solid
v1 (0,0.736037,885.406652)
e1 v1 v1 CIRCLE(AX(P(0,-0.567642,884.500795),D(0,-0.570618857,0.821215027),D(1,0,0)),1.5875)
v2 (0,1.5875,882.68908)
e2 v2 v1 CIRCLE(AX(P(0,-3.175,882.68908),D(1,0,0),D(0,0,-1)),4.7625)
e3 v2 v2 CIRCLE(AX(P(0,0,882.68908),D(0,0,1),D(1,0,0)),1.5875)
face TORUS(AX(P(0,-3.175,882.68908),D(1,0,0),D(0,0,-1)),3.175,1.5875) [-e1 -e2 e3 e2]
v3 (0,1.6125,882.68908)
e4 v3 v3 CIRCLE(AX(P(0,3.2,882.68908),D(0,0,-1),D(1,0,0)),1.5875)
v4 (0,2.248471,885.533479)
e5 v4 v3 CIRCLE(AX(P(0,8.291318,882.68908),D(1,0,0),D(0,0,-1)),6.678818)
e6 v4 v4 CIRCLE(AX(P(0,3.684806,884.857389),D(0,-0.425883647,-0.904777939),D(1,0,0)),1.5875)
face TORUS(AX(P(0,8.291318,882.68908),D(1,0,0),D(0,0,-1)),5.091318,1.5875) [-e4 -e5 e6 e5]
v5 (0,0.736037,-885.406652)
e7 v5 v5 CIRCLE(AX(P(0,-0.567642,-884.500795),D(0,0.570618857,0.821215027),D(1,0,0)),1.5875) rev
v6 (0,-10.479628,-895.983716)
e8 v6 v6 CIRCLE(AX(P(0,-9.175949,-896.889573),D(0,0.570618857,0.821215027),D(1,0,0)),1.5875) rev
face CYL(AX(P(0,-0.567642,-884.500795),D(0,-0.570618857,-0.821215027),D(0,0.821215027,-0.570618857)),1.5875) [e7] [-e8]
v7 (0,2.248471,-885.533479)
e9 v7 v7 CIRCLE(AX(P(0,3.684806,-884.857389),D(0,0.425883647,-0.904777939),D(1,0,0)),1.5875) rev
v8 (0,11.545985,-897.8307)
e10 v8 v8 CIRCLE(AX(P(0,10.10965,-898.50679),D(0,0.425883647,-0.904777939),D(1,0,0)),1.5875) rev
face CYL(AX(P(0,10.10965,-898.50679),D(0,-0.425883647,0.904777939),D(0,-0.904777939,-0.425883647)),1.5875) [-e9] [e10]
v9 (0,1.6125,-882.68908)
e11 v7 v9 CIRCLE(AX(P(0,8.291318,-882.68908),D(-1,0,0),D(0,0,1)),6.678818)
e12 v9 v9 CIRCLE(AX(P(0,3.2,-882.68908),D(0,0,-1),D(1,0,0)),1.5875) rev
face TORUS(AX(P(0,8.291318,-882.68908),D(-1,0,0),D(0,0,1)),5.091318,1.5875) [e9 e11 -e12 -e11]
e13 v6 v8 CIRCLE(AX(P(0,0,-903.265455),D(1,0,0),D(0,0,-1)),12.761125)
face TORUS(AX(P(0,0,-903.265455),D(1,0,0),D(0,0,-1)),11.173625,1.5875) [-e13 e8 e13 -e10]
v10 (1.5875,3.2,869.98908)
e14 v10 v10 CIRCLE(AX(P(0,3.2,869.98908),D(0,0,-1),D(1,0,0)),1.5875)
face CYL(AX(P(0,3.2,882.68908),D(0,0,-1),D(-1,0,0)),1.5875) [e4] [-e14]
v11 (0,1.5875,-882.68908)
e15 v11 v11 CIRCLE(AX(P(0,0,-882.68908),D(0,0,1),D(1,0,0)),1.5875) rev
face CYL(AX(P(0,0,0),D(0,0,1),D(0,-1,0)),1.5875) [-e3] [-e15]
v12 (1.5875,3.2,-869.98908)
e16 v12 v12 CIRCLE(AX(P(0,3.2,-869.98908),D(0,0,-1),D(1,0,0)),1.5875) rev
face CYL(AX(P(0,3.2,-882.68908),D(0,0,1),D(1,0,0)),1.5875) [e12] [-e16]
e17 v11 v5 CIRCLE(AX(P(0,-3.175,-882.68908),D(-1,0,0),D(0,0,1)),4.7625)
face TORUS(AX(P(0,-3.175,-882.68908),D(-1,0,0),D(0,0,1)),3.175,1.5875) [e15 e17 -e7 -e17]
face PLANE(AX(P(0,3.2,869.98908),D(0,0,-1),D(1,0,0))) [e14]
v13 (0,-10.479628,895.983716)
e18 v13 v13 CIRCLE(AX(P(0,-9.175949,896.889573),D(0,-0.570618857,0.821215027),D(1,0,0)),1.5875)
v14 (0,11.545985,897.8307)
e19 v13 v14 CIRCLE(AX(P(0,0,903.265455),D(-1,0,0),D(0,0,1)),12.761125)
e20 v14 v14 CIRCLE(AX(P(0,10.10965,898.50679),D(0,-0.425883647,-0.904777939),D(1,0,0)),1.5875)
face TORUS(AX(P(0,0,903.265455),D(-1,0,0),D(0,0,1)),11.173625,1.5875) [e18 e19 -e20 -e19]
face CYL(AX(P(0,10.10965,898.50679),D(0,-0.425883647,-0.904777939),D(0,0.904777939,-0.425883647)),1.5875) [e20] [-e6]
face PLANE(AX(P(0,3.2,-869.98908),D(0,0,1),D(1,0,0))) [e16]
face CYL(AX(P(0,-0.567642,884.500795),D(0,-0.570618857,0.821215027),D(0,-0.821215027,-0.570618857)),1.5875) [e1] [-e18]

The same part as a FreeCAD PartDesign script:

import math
import FreeCAD as App
import Part
import Sketcher
Q = App.Units.Quantity

doc = App.newDocument("Part")
body = doc.addObject("PartDesign::Body", "Body")

# Sketch on XY plane
sketch1 = body.newObject("Sketcher::SketchObject", "Sketch")
sketch1.AttachmentSupport = (doc.getObject("XY_Plane"), [""])
sketch1.MapMode = "FlatFace"
sketch1.addGeometry(Part.Circle(App.Vector(0, 0, 0), App.Vector(0, 0, 1), 1.6), False)
sketch1.addConstraint(Sketcher.Constraint("Coincident", 0, 3, -1, 1))
sketch1.addConstraint(Sketcher.Constraint("Diameter", 0, Q("0.125 in")))

# Sketch on YZ plane
sketch2 = body.newObject("Sketcher::SketchObject", "Sketch001")
sketch2.AttachmentSupport = (doc.getObject("YZ_Plane"), [""])
sketch2.MapMode = "FlatFace"
sketch2.addGeometry(Part.LineSegment(App.Vector(0, 0, 0), App.Vector(0, 882.7, 0)), False)
sketch2.addGeometry(Part.ArcOfCircle(Part.Circle(App.Vector(-3.2, 882.7, 0), App.Vector(0, 0, 1), 3.2), math.radians(0), math.radians(35)), False)
sketch2.addGeometry(Part.LineSegment(App.Vector(-0.6, 884.5, 0), App.Vector(-9.2, 896.9, 0)), False)
sketch2.addGeometry(Part.ArcOfCircle(Part.Circle(App.Vector(0, 903.3, 0), App.Vector(0, 0, 1), 11.2), math.radians(-25), math.radians(215)), False)
sketch2.addGeometry(Part.LineSegment(App.Vector(10.1, 898.5, 0), App.Vector(3.7, 884.9, 0)), False)
sketch2.addGeometry(Part.ArcOfCircle(Part.Circle(App.Vector(8.3, 882.7, 0), App.Vector(0, 0, 1), 5.1), math.radians(155), math.radians(180)), False)
sketch2.addGeometry(Part.LineSegment(App.Vector(3.2, 882.7, 0), App.Vector(3.2, 870, 0)), False)
sketch2.addConstraint(Sketcher.Constraint("Tangent", 0, 2, 1, 1))
sketch2.addConstraint(Sketcher.Constraint("Tangent", 1, 2, 2, 1))
sketch2.addConstraint(Sketcher.Constraint("Tangent", 2, 2, 3, 2))
sketch2.addConstraint(Sketcher.Constraint("Tangent", 3, 1, 4, 1))
sketch2.addConstraint(Sketcher.Constraint("Tangent", 4, 2, 5, 1))
sketch2.addConstraint(Sketcher.Constraint("Tangent", 5, 2, 6, 1))
sketch2.addConstraint(Sketcher.Constraint("Vertical", 0))
sketch2.addConstraint(Sketcher.Constraint("Vertical", 6))
sketch2.addConstraint(Sketcher.Constraint("Coincident", 0, 1, -1, 1))
sketch2.addConstraint(Sketcher.Constraint("PointOnObject", 3, 3, -2))
sketch2.addConstraint(Sketcher.Constraint("Horizontal", 1, 3, 5, 3))
sketch2.addConstraint(Sketcher.Constraint("Equal", 2, 4))
sketch2.addConstraint(Sketcher.Constraint("DistanceY", 6, 2, 6, 1, Q("0.5 in")))
sketch2.addConstraint(Sketcher.Constraint("Radius", 1, Q("0.125 in")))
sketch2.addConstraint(Sketcher.Constraint("Radius", 3, Q("11.173625 mm")))
sketch2.addConstraint(Sketcher.Constraint("Radius", 5, Q("5.091318 mm")))
sketch2.addConstraint(Sketcher.Constraint("DistanceY", 0, 1, 0, 2, Q("882.68908 mm")))
sketch2.addConstraint(Sketcher.Constraint("DistanceX", 2, 2, 3, 1, Q("19.285598 mm")))
doc.recompute()

additivepipe = body.newObject("PartDesign::AdditivePipe", "AdditivePipe")
additivepipe.Profile = sketch1
additivepipe.Spine = (sketch2, ["Edge1", "Edge2", "Edge3", "Edge4", "Edge5", "Edge6", "Edge7"])
doc.recompute()

mirrored = body.newObject("PartDesign::Mirrored", "Mirrored")
mirrored.Originals = [additivepipe]
mirrored.MirrorPlane = (doc.getObject("XY_Plane"), [""])
body.Tip = mirrored

doc.recompute()
